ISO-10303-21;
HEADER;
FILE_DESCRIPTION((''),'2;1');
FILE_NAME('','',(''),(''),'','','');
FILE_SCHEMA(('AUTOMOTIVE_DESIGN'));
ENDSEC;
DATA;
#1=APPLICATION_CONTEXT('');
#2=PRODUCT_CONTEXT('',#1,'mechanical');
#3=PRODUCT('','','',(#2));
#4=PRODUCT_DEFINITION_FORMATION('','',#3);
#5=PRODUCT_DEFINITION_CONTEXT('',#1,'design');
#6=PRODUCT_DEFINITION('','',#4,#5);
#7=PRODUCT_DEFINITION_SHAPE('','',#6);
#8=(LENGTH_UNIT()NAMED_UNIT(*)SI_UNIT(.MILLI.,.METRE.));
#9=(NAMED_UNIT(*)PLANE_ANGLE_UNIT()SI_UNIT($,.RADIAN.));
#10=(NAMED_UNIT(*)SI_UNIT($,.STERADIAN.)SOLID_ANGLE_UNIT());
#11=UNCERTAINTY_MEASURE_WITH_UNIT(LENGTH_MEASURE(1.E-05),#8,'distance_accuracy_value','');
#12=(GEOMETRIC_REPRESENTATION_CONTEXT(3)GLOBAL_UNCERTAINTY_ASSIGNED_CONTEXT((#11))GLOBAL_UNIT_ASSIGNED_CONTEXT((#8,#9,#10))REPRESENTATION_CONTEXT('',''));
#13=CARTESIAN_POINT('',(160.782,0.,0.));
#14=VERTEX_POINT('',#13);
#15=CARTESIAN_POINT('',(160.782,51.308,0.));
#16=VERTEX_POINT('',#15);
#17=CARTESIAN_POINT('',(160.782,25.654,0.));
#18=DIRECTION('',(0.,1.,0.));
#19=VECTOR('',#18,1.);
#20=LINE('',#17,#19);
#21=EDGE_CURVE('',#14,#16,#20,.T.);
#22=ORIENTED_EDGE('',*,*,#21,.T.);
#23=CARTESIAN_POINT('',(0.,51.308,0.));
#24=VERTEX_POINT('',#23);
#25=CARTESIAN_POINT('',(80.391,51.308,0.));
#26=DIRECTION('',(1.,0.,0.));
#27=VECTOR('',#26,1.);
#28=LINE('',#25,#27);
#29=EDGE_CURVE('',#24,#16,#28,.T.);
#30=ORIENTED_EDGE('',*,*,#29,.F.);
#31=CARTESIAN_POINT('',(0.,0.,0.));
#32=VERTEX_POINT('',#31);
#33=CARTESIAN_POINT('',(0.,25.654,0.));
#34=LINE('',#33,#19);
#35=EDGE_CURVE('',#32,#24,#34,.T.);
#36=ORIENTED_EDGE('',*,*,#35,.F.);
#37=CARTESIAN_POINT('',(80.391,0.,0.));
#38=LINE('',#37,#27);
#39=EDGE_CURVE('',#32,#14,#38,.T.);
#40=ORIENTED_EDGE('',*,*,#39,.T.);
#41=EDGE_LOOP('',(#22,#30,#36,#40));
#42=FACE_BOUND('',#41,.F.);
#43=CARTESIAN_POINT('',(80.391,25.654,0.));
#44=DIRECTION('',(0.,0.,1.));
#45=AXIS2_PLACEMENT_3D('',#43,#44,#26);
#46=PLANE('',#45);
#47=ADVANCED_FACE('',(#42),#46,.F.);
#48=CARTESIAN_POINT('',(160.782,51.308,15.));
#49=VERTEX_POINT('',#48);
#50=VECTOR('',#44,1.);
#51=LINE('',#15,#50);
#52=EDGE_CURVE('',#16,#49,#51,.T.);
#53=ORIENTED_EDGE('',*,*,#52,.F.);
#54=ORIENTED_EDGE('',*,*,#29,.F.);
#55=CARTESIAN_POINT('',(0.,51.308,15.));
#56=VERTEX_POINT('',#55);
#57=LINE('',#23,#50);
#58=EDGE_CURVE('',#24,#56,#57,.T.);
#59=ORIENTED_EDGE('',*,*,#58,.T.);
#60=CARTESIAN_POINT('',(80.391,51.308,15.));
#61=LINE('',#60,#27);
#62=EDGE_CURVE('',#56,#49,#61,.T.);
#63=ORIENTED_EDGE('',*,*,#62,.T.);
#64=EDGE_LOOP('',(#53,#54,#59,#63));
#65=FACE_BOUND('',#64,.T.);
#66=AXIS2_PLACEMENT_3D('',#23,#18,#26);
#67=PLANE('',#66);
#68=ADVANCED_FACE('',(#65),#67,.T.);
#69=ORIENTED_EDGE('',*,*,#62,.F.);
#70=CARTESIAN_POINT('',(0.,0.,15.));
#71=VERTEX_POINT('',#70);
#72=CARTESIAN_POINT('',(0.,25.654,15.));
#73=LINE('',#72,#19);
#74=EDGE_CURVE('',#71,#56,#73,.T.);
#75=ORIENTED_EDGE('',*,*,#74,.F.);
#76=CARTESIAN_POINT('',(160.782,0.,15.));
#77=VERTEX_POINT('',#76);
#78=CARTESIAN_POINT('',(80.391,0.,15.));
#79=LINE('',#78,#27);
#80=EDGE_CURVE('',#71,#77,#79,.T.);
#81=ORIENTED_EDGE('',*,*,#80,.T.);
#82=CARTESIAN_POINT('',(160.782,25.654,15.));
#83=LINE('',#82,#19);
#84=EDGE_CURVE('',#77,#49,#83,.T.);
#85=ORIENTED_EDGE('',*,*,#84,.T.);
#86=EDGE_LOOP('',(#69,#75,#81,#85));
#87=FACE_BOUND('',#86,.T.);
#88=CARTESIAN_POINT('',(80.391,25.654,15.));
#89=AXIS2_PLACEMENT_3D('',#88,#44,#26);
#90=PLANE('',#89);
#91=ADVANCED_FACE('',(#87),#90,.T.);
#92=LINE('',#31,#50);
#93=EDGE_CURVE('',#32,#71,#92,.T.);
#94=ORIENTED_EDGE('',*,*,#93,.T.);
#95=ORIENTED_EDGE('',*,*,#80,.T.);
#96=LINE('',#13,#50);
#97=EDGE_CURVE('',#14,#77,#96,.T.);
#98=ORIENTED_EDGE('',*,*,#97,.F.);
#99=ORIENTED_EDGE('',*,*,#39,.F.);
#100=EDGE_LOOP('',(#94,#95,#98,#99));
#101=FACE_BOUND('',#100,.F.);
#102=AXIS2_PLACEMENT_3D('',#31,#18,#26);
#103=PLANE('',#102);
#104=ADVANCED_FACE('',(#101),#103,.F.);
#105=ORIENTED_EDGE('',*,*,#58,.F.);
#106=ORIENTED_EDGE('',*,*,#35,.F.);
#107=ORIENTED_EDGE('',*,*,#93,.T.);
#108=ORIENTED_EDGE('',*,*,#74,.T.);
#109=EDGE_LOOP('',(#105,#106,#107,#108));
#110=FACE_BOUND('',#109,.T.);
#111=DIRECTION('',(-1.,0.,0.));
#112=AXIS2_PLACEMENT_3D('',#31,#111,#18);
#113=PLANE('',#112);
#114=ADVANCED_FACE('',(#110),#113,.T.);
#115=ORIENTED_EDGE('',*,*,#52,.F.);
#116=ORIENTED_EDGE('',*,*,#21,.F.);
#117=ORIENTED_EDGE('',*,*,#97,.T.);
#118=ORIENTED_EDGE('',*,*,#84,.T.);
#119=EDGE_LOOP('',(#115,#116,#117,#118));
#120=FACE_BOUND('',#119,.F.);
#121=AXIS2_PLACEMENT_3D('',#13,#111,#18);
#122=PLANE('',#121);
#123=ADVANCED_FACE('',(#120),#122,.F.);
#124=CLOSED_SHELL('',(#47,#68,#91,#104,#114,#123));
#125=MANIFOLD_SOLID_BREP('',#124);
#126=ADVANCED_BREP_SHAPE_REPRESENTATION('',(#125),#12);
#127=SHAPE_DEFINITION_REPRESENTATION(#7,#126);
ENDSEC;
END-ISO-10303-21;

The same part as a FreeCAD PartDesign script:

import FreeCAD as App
import Part
import Sketcher
from FreeCAD import Vector
Q = App.Units.Quantity

doc = App.newDocument("Part")
params = doc.addObject("Spreadsheet::Sheet", "Params")
for row, (alias, value) in enumerate([
    ("sketch1_width", "6.33 in"),
    ("sketch1_height", "2.02 in"),
    ("pad1_length", "15 mm"),
], start=1):
    params.set(f"A{row}", alias)
    params.set(f"B{row}", "=" + value)
    params.setAlias(f"B{row}", alias)

body = doc.addObject("PartDesign::Body", "Body")

sketch1 = body.newObject("Sketcher::SketchObject", "Sketch")
sketch1.AttachmentSupport = (doc.getObject("XY_Plane"), [""])
sketch1.MapMode = "FlatFace"
sketch1.addGeometry([
    Part.LineSegment(Vector(0, 51.308, 0), Vector(0, 0, 0)),
    Part.LineSegment(Vector(0, 0, 0), Vector(160.782, 0, 0)),
    Part.LineSegment(Vector(160.782, 0, 0), Vector(160.782, 51.308, 0)),
    Part.LineSegment(Vector(160.782, 51.308, 0), Vector(0, 51.308, 0)),
], False)
sketch1.addConstraint([
    Sketcher.Constraint("Coincident", 0, 2, 1, 1),
    Sketcher.Constraint("Coincident", 1, 2, 2, 1),
    Sketcher.Constraint("Coincident", 2, 2, 3, 1),
    Sketcher.Constraint("Coincident", 3, 2, 0, 1),
    Sketcher.Constraint("Vertical", 0),
    Sketcher.Constraint("Horizontal", 1),
    Sketcher.Constraint("Vertical", 2),
    Sketcher.Constraint("Horizontal", 3),
    Sketcher.Constraint("Coincident", 0, 2, -1, 1),
    Sketcher.Constraint("DistanceX", 1, 1, 1, 2, Q("6.33 in")),
    Sketcher.Constraint("DistanceY", 0, 2, 0, 1, Q("2.02 in")),
])
sketch1.setExpression("Constraints[9]", "Params.sketch1_width")
sketch1.setExpression("Constraints[10]", "Params.sketch1_height")
pad1 = body.newObject("PartDesign::Pad", "Pad")
pad1.Profile = sketch1
pad1.setExpression("Length", "Params.pad1_length")

doc.recompute()
